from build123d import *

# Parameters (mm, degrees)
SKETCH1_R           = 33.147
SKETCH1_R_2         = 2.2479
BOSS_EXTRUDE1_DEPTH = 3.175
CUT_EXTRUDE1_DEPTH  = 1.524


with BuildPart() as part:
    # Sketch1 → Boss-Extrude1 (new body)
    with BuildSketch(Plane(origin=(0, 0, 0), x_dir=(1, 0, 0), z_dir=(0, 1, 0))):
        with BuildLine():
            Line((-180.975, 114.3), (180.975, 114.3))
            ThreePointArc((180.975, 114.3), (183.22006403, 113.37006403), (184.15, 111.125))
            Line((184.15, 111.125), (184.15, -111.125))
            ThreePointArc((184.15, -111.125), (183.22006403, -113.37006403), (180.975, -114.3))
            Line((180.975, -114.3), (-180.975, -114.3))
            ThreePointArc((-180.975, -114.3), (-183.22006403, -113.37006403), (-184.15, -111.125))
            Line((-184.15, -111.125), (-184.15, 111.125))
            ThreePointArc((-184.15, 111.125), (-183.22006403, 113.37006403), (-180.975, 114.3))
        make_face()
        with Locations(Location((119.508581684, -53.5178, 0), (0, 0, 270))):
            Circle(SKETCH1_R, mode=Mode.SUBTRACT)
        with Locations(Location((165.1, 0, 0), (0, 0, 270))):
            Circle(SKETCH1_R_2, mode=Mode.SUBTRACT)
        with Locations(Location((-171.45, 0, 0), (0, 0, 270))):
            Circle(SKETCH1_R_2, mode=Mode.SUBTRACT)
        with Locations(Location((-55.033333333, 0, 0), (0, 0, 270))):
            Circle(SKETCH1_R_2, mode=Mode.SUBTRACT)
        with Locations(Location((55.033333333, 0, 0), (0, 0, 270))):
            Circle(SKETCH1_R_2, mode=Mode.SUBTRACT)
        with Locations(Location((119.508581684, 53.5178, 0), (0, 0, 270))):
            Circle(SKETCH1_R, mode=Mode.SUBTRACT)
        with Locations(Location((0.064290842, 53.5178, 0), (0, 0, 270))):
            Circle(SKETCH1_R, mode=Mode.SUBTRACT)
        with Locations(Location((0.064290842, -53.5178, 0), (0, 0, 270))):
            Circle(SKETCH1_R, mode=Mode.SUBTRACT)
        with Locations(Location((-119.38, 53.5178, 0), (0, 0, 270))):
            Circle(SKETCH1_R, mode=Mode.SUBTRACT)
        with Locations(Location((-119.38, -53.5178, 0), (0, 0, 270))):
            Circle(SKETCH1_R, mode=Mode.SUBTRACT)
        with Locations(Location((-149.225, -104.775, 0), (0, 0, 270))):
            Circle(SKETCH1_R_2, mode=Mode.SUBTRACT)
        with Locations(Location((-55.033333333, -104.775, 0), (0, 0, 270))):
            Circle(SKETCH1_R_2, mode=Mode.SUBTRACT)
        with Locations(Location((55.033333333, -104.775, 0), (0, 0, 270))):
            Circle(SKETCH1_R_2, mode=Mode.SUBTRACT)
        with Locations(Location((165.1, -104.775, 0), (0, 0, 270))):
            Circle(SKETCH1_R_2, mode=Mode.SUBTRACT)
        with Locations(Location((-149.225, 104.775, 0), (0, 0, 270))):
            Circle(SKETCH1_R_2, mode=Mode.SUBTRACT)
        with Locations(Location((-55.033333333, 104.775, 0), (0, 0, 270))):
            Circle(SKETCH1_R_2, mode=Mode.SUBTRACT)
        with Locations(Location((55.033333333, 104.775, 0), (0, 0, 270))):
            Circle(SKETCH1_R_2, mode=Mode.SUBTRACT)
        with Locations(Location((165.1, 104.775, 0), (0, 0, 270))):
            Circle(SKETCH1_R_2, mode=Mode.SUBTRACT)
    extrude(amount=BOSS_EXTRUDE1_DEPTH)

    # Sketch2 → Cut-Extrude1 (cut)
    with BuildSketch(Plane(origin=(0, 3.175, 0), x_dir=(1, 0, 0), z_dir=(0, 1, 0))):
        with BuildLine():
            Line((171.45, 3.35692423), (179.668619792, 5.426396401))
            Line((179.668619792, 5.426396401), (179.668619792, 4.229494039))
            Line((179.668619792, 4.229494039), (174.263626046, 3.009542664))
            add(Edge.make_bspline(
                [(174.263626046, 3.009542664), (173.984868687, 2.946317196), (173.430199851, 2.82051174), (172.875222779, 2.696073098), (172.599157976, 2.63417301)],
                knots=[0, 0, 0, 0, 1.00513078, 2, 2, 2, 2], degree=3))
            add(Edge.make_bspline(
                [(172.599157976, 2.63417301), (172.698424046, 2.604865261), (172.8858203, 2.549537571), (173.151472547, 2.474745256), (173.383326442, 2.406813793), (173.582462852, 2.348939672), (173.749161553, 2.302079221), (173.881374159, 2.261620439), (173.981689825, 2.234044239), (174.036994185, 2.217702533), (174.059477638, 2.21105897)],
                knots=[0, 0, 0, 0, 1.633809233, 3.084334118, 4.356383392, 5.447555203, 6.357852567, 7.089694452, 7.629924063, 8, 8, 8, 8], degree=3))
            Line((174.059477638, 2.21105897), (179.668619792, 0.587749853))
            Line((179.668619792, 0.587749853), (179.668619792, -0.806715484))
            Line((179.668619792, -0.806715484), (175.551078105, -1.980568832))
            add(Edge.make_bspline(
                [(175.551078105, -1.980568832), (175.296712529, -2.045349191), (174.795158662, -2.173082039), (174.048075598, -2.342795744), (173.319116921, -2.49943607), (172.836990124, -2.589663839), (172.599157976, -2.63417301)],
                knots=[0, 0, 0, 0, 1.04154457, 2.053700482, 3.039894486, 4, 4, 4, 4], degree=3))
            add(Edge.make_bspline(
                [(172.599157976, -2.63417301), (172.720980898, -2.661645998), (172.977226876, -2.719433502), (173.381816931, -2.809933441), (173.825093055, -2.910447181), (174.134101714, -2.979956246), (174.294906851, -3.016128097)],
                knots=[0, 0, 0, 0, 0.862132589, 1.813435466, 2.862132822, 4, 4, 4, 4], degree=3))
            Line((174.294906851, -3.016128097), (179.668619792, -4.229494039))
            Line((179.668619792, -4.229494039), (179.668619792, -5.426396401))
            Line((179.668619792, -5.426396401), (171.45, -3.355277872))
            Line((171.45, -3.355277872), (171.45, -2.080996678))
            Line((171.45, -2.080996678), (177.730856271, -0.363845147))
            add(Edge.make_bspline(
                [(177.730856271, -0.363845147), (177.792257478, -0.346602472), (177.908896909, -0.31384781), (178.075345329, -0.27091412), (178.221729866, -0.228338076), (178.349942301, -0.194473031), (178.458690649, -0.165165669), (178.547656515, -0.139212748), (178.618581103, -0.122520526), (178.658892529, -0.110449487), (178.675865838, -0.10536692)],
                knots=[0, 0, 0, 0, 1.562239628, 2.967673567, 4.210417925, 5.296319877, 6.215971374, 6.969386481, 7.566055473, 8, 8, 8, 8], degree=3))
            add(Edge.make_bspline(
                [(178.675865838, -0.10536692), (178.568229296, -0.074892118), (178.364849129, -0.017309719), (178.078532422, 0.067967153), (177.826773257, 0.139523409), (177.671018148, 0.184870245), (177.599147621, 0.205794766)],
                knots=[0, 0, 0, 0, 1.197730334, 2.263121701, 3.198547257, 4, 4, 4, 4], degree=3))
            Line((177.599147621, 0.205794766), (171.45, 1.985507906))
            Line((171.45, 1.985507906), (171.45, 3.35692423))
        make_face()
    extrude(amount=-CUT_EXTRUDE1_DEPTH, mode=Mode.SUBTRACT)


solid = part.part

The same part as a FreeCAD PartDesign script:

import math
import FreeCAD as App
import Part
import Sketcher
Q = App.Units.Quantity

doc = App.newDocument("Part")
body = doc.addObject("PartDesign::Body", "Body")

sketch1 = body.newObject("Sketcher::SketchObject", "Sketch")
sketch1.AttachmentSupport = (doc.getObject("XZ_Plane"), [""])
sketch1.MapMode = "FlatFace"
sketch1.addGeometry([
    Part.LineSegment(App.Vector(181, -114.3, 0), App.Vector(-181, -114.3, 0)),
    Part.ArcOfCircle(Part.Circle(App.Vector(-181, -111.1, 0), App.Vector(0, 0, 1), 3.2), math.radians(-180), math.radians(-90)),
    Part.LineSegment(App.Vector(-184.2, -111.1, 0), App.Vector(-184.2, 111.1, 0)),
    Part.ArcOfCircle(Part.Circle(App.Vector(-181, 111.1, 0), App.Vector(0, 0, 1), 3.2), math.radians(90), math.radians(180)),
    Part.LineSegment(App.Vector(-181, 114.3, 0), App.Vector(181, 114.3, 0)),
    Part.ArcOfCircle(Part.Circle(App.Vector(181, 111.1, 0), App.Vector(0, 0, 1), 3.2), math.radians(0), math.radians(90)),
    Part.LineSegment(App.Vector(184.2, 111.1, 0), App.Vector(184.2, -111.1, 0)),
    Part.ArcOfCircle(Part.Circle(App.Vector(181, -111.1, 0), App.Vector(0, 0, 1), 3.2), math.radians(-90), math.radians(0)),
    Part.Circle(App.Vector(165.1, 104.8, 0), App.Vector(0, 0, 1), 2.2),
    Part.Circle(App.Vector(119.5, 53.5, 0), App.Vector(0, 0, 1), 33.1),
    Part.Circle(App.Vector(55, 104.8, 0), App.Vector(0, 0, 1), 2.2),
    Part.Circle(App.Vector(0.1, 53.5, 0), App.Vector(0, 0, 1), 33.1),
    Part.Circle(App.Vector(-55, 104.8, 0), App.Vector(0, 0, 1), 2.2),
    Part.Circle(App.Vector(-149.2, 104.8, 0), App.Vector(0, 0, 1), 2.2),
    Part.Circle(App.Vector(-119.4, 53.5, 0), App.Vector(0, 0, 1), 33.1),
    Part.Circle(App.Vector(165.1, 0, 0), App.Vector(0, 0, 1), 2.2),
    Part.Circle(App.Vector(55, 0, 0), App.Vector(0, 0, 1), 2.2),
    Part.Circle(App.Vector(119.5, -53.5, 0), App.Vector(0, 0, 1), 33.1),
    Part.Circle(App.Vector(165.1, -104.8, 0), App.Vector(0, 0, 1), 2.2),
    Part.Circle(App.Vector(0.1, -53.5, 0), App.Vector(0, 0, 1), 33.1),
    Part.Circle(App.Vector(55, -104.8, 0), App.Vector(0, 0, 1), 2.2),
    Part.Circle(App.Vector(-55, 0, 0), App.Vector(0, 0, 1), 2.2),
    Part.Circle(App.Vector(-171.4, 0, 0), App.Vector(0, 0, 1), 2.2),
    Part.Circle(App.Vector(-55, -104.8, 0), App.Vector(0, 0, 1), 2.2),
    Part.Circle(App.Vector(-119.4, -53.5, 0), App.Vector(0, 0, 1), 33.1),
    Part.Circle(App.Vector(-149.2, -104.8, 0), App.Vector(0, 0, 1), 2.2),
], False)
sketch1.addConstraint([
    Sketcher.Constraint("Tangent", 0, 2, 1, 2),
    Sketcher.Constraint("Tangent", 1, 1, 2, 1),
    Sketcher.Constraint("Tangent", 2, 2, 3, 2),
    Sketcher.Constraint("Tangent", 3, 1, 4, 1),
    Sketcher.Constraint("Tangent", 4, 2, 5, 2),
    Sketcher.Constraint("Tangent", 5, 1, 6, 1),
    Sketcher.Constraint("Tangent", 6, 2, 7, 2),
    Sketcher.Constraint("Tangent", 7, 1, 0, 1),
    Sketcher.Constraint("Horizontal", 0),
    Sketcher.Constraint("Vertical", 2),
    Sketcher.Constraint("Horizontal", 4),
    Sketcher.Constraint("Vertical", 6),
    Sketcher.Constraint("Equal", 1, 3),
    Sketcher.Constraint("Equal", 3, 5),
    Sketcher.Constraint("Equal", 5, 7),
    Sketcher.Constraint("Equal", 8, 10),
    Sketcher.Constraint("Equal", 9, 11),
    Sketcher.Constraint("Equal", 10, 12),
    Sketcher.Constraint("Equal", 12, 13),
    Sketcher.Constraint("Equal", 11, 14),
    Sketcher.Constraint("Equal", 13, 15),
    Sketcher.Constraint("Equal", 15, 16),
    Sketcher.Constraint("Equal", 14, 17),
    Sketcher.Constraint("Equal", 16, 18),
    Sketcher.Constraint("Equal", 17, 19),
    Sketcher.Constraint("Equal", 18, 20),
    Sketcher.Constraint("Equal", 20, 21),
    Sketcher.Constraint("Equal", 21, 22),
    Sketcher.Constraint("Equal", 22, 23),
    Sketcher.Constraint("Equal", 19, 24),
    Sketcher.Constraint("Equal", 23, 25),
    Sketcher.Constraint("Symmetric", 1, 3, 5, 3, -1, 1),
    Sketcher.Constraint("Symmetric", 12, 3, 20, 3, -1, 1),
    Sketcher.Constraint("Symmetric", 16, 3, 21, 3, -1, 1),
    Sketcher.Constraint("Symmetric", 10, 3, 23, 3, -1, 1),
    Sketcher.Constraint("Symmetric", 10, 3, 12, 3, -2),
    Sketcher.Constraint("Symmetric", 9, 3, 17, 3, -1),
    Sketcher.Constraint("Symmetric", 8, 3, 18, 3, -1),
    Sketcher.Constraint("Symmetric", 11, 3, 19, 3, -1),
    Sketcher.Constraint("Symmetric", 14, 3, 24, 3, -1),
    Sketcher.Constraint("Symmetric", 13, 3, 25, 3, -1),
    Sketcher.Constraint("PointOnObject", 15, 3, -1),
    Sketcher.Constraint("PointOnObject", 16, 3, -1),
    Sketcher.Constraint("PointOnObject", 22, 3, -1),
    Sketcher.Constraint("Horizontal", 8, 3, 10, 3),
    Sketcher.Constraint("Horizontal", 9, 3, 11, 3),
    Sketcher.Constraint("Horizontal", 12, 3, 13, 3),
    Sketcher.Constraint("Horizontal", 11, 3, 14, 3),
    Sketcher.Constraint("Vertical", 8, 3, 15, 3),
    Sketcher.Constraint("Vertical", 10, 3, 16, 3),
    Sketcher.Constraint("Diameter", 9, Q("2.61 in")),
    Sketcher.Constraint("Diameter", 8, Q("0.177 in")),
    Sketcher.Constraint("Radius", 1, Q("0.125 in")),
    Sketcher.Constraint("DistanceX", 0, 2, 0, 1, Q("14.25 in")),
    Sketcher.Constraint("DistanceY", 2, 1, 2, 2, Q("8.75 in")),
    Sketcher.Constraint("DistanceX", -1, 1, 8, 3, Q("6.5 in")),
    Sketcher.Constraint("DistanceX", 14, 3, -1, 1, Q("4.7 in")),
    Sketcher.Constraint("DistanceY", 7, 3, 8, 3, Q("8.5 in")),
    Sketcher.Constraint("DistanceX", 1, 1, 22, 3, Q("0.5 in")),
    Sketcher.Constraint("DistanceX", 3, 3, 13, 3, Q("1.25 in")),
    Sketcher.Constraint("DistanceY", -1, 1, 9, 3, Q("2.107 in")),
    Sketcher.Constraint("DistanceX", -1, 1, 9, 3, Q("119.508582 mm")),
    Sketcher.Constraint("DistanceX", -1, 1, 11, 3, Q("0.064291 mm")),
    Sketcher.Constraint("DistanceX", 10, 3, 9, 3, Q("64.475248 mm")),
])
pad1 = body.newObject("PartDesign::Pad", "Pad")
pad1.Profile = sketch1
pad1.Length = Q("0.125 in")
pad1.Reversed = True

sketch2 = body.newObject("Sketcher::SketchObject", "Sketch001")
sketch2.AttachmentSupport = (doc.getObject("XZ_Plane"), [""])
sketch2.MapMode = "FlatFace"
sketch2.AttachmentOffset = App.Placement(App.Vector(0, 0, -0.125 * 25.4), App.Rotation())
sketch2.addGeometry([
    Part.LineSegment(App.Vector(179.66862, -5.426396, 0), App.Vector(171.45, -3.356924, 0)),
    Part.LineSegment(App.Vector(171.45, -3.356924, 0), App.Vector(171.45, -1.985508, 0)),
    Part.LineSegment(App.Vector(171.45, -1.985508, 0), App.Vector(177.599148, -0.205795, 0)),
    Part.BSplineCurve([App.Vector(178.675866, 0.105367, 0), App.Vector(178.568229, 0.074892, 0), App.Vector(178.364849, 0.01731, 0), App.Vector(178.078532, -0.067967, 0), App.Vector(177.826773, -0.139523, 0), App.Vector(177.671018, -0.18487, 0), App.Vector(177.599148, -0.205795, 0)], [4, 1, 1, 1, 4], [0, 1.197730334, 2.263121701, 3.198547257, 4], False, 3, [1, 1, 1, 1, 1, 1, 1], False),
    Part.BSplineCurve([App.Vector(177.730856, 0.363845, 0), App.Vector(177.792257, 0.346602, 0), App.Vector(177.908897, 0.313848, 0), App.Vector(178.075345, 0.270914, 0), App.Vector(178.22173, 0.228338, 0), App.Vector(178.349942, 0.194473, 0), App.Vector(178.458691, 0.165166, 0), App.Vector(178.547657, 0.139213, 0), App.Vector(178.618581, 0.122521, 0), App.Vector(178.658893, 0.110449, 0), App.Vector(178.675866, 0.105367, 0)], [4, 1, 1, 1, 1, 1, 1, 1, 4], [0, 1.562239628, 2.967673567, 4.210417925, 5.296319877, 6.215971374, 6.969386481, 7.566055473, 8], False, 3, [1, 1, 1, 1, 1, 1, 1, 1, 1, 1, 1], False),
    Part.LineSegment(App.Vector(177.730856, 0.363845, 0), App.Vector(171.45, 2.080997, 0)),
    Part.LineSegment(App.Vector(171.45, 2.080997, 0), App.Vector(171.45, 3.355278, 0)),
    Part.LineSegment(App.Vector(171.45, 3.355278, 0), App.Vector(179.66862, 5.426396, 0)),
    Part.LineSegment(App.Vector(179.66862, 5.426396, 0), App.Vector(179.66862, 4.229494, 0)),
    Part.LineSegment(App.Vector(179.66862, 4.229494, 0), App.Vector(174.294907, 3.016128, 0)),
    Part.BSplineCurve([App.Vector(172.599158, 2.634173, 0), App.Vector(172.720981, 2.661646, 0), App.Vector(172.977227, 2.719434, 0), App.Vector(173.381817, 2.809933, 0), App.Vector(173.825093, 2.910447, 0), App.Vector(174.134102, 2.979956, 0), App.Vector(174.294907, 3.016128, 0)], [4, 1, 1, 1, 4], [0, 0.862132589, 1.813435466, 2.862132822, 4], False, 3, [1, 1, 1, 1, 1, 1, 1], False),
    Part.BSplineCurve([App.Vector(175.551078, 1.980569, 0), App.Vector(175.296713, 2.045349, 0), App.Vector(174.795159, 2.173082, 0), App.Vector(174.048076, 2.342796, 0), App.Vector(173.319117, 2.499436, 0), App.Vector(172.83699, 2.589664, 0), App.Vector(172.599158, 2.634173, 0)], [4, 1, 1, 1, 4], [0, 1.04154457, 2.053700482, 3.039894486, 4], False, 3, [1, 1, 1, 1, 1, 1, 1], False),
    Part.LineSegment(App.Vector(175.551078, 1.980569, 0), App.Vector(179.66862, 0.806715, 0)),
    Part.LineSegment(App.Vector(179.66862, 0.806715, 0), App.Vector(179.66862, -0.58775, 0)),
    Part.LineSegment(App.Vector(179.66862, -0.58775, 0), App.Vector(174.059478, -2.211059, 0)),
    Part.BSplineCurve([App.Vector(172.599158, -2.634173, 0), App.Vector(172.698424, -2.604865, 0), App.Vector(172.88582, -2.549538, 0), App.Vector(173.151473, -2.474745, 0), App.Vector(173.383326, -2.406814, 0), App.Vector(173.582463, -2.34894, 0), App.Vector(173.749162, -2.302079, 0), App.Vector(173.881374, -2.26162, 0), App.Vector(173.98169, -2.234044, 0), App.Vector(174.036994, -2.217703, 0), App.Vector(174.059478, -2.211059, 0)], [4, 1, 1, 1, 1, 1, 1, 1, 4], [0, 1.633809233, 3.084334118, 4.356383392, 5.447555203, 6.357852567, 7.089694452, 7.629924063, 8], False, 3, [1, 1, 1, 1, 1, 1, 1, 1, 1, 1, 1], False),
    Part.BSplineCurve([App.Vector(174.263626, -3.009543, 0), App.Vector(173.984869, -2.946317, 0), App.Vector(173.4302, -2.820512, 0), App.Vector(172.875223, -2.696073, 0), App.Vector(172.599158, -2.634173, 0)], [4, 1, 4], [0, 1.00513078, 2], False, 3, [1, 1, 1, 1, 1], False),
    Part.LineSegment(App.Vector(174.263626, -3.009543, 0), App.Vector(179.66862, -4.229494, 0)),
    Part.LineSegment(App.Vector(179.66862, -4.229494, 0), App.Vector(179.66862, -5.426396, 0)),
], False)
sketch2.addConstraint([
    Sketcher.Constraint("Block", 3),
    Sketcher.Constraint("Block", 4),
    Sketcher.Constraint("Block", 10),
    Sketcher.Constraint("Block", 11),
    Sketcher.Constraint("Block", 15),
    Sketcher.Constraint("Block", 16),
    Sketcher.Constraint("Coincident", 0, 2, 1, 1),
    Sketcher.Constraint("Coincident", 1, 2, 2, 1),
    Sketcher.Constraint("Coincident", 2, 2, 3, 2),
    Sketcher.Constraint("Coincident", 4, 1, 5, 1),
    Sketcher.Constraint("Coincident", 5, 2, 6, 1),
    Sketcher.Constraint("Coincident", 6, 2, 7, 1),
    Sketcher.Constraint("Coincident", 7, 2, 8, 1),
    Sketcher.Constraint("Coincident", 8, 2, 9, 1),
    Sketcher.Constraint("Coincident", 9, 2, 10, 2),
    Sketcher.Constraint("Coincident", 11, 1, 12, 1),
    Sketcher.Constraint("Coincident", 12, 2, 13, 1),
    Sketcher.Constraint("Coincident", 13, 2, 14, 1),
    Sketcher.Constraint("Coincident", 14, 2, 15, 2),
    Sketcher.Constraint("Coincident", 16, 1, 17, 1),
    Sketcher.Constraint("Coincident", 17, 2, 18, 1),
    Sketcher.Constraint("Coincident", 18, 2, 0, 1),
    Sketcher.Constraint("Vertical", 1),
    Sketcher.Constraint("Vertical", 6),
    Sketcher.Constraint("Vertical", 8),
    Sketcher.Constraint("Vertical", 13),
    Sketcher.Constraint("Vertical", 18),
    Sketcher.Constraint("DistanceX", -1, 1, 0, 2, Q("6.75 in")),
    Sketcher.Constraint("DistanceX", -1, 1, 5, 2, Q("6.75 in")),
    Sketcher.Constraint("DistanceY", 0, 2, 7, 2, Q("0.3458 in")),
    Sketcher.Constraint("DistanceY", 6, 1, 6, 2, Q("1.274281 mm")),
    Sketcher.Constraint("DistanceY", 5, 2, 7, 2, Q("3.3454 mm")),
    Sketcher.Constraint("DistanceY", 1, 2, 8, 2, Q("6.215002 mm")),
    Sketcher.Constraint("DistanceY", 17, 2, 2, 2, Q("4.023699 mm")),
    Sketcher.Constraint("DistanceY", 18, 2, 2, 2, Q("5.220602 mm")),
    Sketcher.Constraint("Distance", 17, Q("5.54096 mm")),
    Sketcher.Constraint("DistanceY", 1, 1, 1, 2, Q("1.371416 mm")),
    Sketcher.Constraint("DistanceY", 13, 2, 13, 1, Q("1.394465 mm")),
    Sketcher.Constraint("DistanceX", -1, 1, 7, 2, Q("179.66862 mm")),
    Sketcher.Constraint("DistanceX", -1, 1, 12, 2, Q("179.66862 mm")),
    Sketcher.Constraint("DistanceY", 13, 2, -1, 1, Q("0.58775 mm")),
    Sketcher.Constraint("DistanceY", 0, 2, 2, 2, Q("3.151129 mm")),
])
pocket1 = body.newObject("PartDesign::Pocket", "Pocket")
pocket1.Profile = sketch2
pocket1.Length = Q("0.06 in")
pocket1.Reversed = True

doc.recompute()
